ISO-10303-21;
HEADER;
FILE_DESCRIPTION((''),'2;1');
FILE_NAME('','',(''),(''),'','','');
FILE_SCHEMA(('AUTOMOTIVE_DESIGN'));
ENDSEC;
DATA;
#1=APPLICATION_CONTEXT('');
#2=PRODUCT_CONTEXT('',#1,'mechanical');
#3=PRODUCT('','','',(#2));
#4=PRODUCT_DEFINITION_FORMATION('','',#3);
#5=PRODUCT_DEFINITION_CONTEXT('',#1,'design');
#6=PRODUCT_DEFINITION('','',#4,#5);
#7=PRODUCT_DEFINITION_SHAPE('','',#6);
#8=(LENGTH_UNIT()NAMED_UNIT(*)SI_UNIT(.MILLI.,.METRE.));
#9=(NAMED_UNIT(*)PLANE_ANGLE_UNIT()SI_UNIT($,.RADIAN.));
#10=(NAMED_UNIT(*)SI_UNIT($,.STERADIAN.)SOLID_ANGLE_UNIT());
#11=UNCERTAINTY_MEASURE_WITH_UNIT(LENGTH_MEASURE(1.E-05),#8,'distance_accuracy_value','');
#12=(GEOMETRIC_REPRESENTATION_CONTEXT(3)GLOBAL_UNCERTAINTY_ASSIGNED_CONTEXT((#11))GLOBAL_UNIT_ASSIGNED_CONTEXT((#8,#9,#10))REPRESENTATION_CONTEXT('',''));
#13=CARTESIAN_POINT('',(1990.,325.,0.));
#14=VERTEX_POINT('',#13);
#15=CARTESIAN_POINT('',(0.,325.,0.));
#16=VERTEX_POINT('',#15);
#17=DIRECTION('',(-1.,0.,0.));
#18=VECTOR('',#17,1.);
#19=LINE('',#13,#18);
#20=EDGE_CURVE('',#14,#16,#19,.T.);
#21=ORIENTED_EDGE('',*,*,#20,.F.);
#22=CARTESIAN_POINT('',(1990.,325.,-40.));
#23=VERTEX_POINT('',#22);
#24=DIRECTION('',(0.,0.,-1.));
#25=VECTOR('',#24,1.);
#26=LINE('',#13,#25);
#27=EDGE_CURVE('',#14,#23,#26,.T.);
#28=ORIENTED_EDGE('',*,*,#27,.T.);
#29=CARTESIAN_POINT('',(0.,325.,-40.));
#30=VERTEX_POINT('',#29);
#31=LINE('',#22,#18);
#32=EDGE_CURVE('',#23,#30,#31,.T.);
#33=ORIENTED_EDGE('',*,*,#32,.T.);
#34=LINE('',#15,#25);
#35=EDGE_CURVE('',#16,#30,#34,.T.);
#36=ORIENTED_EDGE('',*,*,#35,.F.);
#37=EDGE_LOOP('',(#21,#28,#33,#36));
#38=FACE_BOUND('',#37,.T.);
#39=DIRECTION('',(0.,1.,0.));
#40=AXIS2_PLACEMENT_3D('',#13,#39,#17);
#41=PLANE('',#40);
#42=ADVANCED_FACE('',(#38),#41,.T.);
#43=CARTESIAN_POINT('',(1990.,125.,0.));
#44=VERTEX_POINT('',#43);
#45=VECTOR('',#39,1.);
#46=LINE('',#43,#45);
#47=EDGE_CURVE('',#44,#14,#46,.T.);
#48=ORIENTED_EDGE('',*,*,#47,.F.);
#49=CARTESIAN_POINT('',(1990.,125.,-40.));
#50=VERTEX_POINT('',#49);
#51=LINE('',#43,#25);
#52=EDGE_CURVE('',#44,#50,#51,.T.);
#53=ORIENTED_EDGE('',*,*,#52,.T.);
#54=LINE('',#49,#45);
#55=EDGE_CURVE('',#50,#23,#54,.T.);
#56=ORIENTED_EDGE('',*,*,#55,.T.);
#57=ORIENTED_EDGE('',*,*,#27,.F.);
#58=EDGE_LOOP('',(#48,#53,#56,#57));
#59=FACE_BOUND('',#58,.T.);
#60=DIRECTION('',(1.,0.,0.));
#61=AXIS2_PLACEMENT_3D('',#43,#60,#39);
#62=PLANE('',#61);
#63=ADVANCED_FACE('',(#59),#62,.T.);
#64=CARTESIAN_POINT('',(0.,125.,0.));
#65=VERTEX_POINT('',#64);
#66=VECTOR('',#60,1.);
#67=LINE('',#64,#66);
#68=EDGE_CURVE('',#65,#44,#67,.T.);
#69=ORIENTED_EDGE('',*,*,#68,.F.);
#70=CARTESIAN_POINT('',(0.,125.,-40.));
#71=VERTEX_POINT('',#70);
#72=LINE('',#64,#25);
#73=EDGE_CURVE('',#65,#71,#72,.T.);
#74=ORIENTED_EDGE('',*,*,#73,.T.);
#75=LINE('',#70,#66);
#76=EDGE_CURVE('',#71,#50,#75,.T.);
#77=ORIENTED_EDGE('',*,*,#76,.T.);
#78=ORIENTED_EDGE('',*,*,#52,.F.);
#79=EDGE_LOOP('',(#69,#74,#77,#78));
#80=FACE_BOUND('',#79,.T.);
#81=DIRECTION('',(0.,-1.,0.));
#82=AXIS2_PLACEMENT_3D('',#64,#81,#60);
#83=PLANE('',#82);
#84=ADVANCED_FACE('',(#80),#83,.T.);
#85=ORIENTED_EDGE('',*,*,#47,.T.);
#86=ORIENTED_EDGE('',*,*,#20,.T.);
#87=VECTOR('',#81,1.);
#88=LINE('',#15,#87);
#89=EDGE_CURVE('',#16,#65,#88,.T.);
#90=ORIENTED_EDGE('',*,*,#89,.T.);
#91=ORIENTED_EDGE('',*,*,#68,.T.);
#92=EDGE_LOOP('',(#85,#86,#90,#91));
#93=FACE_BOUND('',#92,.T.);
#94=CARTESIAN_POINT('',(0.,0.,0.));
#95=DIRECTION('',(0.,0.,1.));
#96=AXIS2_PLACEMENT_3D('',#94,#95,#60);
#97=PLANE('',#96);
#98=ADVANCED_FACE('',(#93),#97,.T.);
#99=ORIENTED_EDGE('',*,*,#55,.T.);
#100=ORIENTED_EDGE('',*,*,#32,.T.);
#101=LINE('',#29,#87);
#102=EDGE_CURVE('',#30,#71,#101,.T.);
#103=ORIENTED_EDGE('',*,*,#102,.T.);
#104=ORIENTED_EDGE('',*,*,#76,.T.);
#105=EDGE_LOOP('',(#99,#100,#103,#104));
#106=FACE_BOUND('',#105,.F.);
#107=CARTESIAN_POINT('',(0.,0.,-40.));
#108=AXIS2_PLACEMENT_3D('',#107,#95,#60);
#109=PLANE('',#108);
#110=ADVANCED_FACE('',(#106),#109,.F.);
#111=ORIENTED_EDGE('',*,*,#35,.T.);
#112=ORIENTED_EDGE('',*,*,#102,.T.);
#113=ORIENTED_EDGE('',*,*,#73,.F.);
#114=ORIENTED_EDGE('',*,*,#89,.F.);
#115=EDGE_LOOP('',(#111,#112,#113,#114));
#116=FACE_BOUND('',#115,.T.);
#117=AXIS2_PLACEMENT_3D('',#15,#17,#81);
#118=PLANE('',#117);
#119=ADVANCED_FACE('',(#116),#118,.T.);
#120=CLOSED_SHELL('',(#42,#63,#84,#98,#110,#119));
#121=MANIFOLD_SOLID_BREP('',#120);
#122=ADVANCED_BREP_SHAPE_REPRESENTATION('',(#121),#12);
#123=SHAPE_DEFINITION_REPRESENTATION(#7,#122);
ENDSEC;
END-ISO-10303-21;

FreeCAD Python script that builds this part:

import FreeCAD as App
import Part
import Sketcher
from FreeCAD import Vector
Q = App.Units.Quantity


def add_polygon(sketch, points):
    """Adds a closed chain of lines whose ends are joined by coincident constraints."""
    first, n = sketch.GeometryCount, len(points)
    for a, b in zip(points, points[1:] + points[:1]):
        sketch.addGeometry(Part.LineSegment(App.Vector(*a, 0), App.Vector(*b, 0)), False)
    for i in range(n):
        sketch.addConstraint(Sketcher.Constraint("Coincident", first + i, 2, first + (i + 1) % n, 1))

doc = App.newDocument("Part")
body = doc.addObject("PartDesign::Body", "Body")

sketch1 = doc.addObject("Sketcher::SketchObject", "Sketch")
body.addObject(sketch1)
sketch1.AttachmentSupport = (doc.XY_Plane, [""])
sketch1.MapMode = "FlatFace"
add_polygon(sketch1, [(1990, 125), (1990, 325), (0, 325), (0, 125)])
sketch1.addConstraint([
    Sketcher.Constraint("Vertical", 0),
    Sketcher.Constraint("Horizontal", 1),
    Sketcher.Constraint("Vertical", 2),
    Sketcher.Constraint("Horizontal", 3),
    Sketcher.Constraint("PointOnObject", 1, 2, -2),
    Sketcher.Constraint("DistanceX", 1, 2, 1, 1, Q("1990 mm")),
    Sketcher.Constraint("DistanceY", 0, 1, 0, 2, Q("200 mm")),
    Sketcher.Constraint("DistanceY", -1, 1, 0, 2, Q("325 mm")),
])
pad1 = doc.addObject("PartDesign::Pad", "Pad")
body.addObject(pad1)
pad1.Profile = sketch1
pad1.Length = 40
pad1.Reversed = True

doc.recompute()
